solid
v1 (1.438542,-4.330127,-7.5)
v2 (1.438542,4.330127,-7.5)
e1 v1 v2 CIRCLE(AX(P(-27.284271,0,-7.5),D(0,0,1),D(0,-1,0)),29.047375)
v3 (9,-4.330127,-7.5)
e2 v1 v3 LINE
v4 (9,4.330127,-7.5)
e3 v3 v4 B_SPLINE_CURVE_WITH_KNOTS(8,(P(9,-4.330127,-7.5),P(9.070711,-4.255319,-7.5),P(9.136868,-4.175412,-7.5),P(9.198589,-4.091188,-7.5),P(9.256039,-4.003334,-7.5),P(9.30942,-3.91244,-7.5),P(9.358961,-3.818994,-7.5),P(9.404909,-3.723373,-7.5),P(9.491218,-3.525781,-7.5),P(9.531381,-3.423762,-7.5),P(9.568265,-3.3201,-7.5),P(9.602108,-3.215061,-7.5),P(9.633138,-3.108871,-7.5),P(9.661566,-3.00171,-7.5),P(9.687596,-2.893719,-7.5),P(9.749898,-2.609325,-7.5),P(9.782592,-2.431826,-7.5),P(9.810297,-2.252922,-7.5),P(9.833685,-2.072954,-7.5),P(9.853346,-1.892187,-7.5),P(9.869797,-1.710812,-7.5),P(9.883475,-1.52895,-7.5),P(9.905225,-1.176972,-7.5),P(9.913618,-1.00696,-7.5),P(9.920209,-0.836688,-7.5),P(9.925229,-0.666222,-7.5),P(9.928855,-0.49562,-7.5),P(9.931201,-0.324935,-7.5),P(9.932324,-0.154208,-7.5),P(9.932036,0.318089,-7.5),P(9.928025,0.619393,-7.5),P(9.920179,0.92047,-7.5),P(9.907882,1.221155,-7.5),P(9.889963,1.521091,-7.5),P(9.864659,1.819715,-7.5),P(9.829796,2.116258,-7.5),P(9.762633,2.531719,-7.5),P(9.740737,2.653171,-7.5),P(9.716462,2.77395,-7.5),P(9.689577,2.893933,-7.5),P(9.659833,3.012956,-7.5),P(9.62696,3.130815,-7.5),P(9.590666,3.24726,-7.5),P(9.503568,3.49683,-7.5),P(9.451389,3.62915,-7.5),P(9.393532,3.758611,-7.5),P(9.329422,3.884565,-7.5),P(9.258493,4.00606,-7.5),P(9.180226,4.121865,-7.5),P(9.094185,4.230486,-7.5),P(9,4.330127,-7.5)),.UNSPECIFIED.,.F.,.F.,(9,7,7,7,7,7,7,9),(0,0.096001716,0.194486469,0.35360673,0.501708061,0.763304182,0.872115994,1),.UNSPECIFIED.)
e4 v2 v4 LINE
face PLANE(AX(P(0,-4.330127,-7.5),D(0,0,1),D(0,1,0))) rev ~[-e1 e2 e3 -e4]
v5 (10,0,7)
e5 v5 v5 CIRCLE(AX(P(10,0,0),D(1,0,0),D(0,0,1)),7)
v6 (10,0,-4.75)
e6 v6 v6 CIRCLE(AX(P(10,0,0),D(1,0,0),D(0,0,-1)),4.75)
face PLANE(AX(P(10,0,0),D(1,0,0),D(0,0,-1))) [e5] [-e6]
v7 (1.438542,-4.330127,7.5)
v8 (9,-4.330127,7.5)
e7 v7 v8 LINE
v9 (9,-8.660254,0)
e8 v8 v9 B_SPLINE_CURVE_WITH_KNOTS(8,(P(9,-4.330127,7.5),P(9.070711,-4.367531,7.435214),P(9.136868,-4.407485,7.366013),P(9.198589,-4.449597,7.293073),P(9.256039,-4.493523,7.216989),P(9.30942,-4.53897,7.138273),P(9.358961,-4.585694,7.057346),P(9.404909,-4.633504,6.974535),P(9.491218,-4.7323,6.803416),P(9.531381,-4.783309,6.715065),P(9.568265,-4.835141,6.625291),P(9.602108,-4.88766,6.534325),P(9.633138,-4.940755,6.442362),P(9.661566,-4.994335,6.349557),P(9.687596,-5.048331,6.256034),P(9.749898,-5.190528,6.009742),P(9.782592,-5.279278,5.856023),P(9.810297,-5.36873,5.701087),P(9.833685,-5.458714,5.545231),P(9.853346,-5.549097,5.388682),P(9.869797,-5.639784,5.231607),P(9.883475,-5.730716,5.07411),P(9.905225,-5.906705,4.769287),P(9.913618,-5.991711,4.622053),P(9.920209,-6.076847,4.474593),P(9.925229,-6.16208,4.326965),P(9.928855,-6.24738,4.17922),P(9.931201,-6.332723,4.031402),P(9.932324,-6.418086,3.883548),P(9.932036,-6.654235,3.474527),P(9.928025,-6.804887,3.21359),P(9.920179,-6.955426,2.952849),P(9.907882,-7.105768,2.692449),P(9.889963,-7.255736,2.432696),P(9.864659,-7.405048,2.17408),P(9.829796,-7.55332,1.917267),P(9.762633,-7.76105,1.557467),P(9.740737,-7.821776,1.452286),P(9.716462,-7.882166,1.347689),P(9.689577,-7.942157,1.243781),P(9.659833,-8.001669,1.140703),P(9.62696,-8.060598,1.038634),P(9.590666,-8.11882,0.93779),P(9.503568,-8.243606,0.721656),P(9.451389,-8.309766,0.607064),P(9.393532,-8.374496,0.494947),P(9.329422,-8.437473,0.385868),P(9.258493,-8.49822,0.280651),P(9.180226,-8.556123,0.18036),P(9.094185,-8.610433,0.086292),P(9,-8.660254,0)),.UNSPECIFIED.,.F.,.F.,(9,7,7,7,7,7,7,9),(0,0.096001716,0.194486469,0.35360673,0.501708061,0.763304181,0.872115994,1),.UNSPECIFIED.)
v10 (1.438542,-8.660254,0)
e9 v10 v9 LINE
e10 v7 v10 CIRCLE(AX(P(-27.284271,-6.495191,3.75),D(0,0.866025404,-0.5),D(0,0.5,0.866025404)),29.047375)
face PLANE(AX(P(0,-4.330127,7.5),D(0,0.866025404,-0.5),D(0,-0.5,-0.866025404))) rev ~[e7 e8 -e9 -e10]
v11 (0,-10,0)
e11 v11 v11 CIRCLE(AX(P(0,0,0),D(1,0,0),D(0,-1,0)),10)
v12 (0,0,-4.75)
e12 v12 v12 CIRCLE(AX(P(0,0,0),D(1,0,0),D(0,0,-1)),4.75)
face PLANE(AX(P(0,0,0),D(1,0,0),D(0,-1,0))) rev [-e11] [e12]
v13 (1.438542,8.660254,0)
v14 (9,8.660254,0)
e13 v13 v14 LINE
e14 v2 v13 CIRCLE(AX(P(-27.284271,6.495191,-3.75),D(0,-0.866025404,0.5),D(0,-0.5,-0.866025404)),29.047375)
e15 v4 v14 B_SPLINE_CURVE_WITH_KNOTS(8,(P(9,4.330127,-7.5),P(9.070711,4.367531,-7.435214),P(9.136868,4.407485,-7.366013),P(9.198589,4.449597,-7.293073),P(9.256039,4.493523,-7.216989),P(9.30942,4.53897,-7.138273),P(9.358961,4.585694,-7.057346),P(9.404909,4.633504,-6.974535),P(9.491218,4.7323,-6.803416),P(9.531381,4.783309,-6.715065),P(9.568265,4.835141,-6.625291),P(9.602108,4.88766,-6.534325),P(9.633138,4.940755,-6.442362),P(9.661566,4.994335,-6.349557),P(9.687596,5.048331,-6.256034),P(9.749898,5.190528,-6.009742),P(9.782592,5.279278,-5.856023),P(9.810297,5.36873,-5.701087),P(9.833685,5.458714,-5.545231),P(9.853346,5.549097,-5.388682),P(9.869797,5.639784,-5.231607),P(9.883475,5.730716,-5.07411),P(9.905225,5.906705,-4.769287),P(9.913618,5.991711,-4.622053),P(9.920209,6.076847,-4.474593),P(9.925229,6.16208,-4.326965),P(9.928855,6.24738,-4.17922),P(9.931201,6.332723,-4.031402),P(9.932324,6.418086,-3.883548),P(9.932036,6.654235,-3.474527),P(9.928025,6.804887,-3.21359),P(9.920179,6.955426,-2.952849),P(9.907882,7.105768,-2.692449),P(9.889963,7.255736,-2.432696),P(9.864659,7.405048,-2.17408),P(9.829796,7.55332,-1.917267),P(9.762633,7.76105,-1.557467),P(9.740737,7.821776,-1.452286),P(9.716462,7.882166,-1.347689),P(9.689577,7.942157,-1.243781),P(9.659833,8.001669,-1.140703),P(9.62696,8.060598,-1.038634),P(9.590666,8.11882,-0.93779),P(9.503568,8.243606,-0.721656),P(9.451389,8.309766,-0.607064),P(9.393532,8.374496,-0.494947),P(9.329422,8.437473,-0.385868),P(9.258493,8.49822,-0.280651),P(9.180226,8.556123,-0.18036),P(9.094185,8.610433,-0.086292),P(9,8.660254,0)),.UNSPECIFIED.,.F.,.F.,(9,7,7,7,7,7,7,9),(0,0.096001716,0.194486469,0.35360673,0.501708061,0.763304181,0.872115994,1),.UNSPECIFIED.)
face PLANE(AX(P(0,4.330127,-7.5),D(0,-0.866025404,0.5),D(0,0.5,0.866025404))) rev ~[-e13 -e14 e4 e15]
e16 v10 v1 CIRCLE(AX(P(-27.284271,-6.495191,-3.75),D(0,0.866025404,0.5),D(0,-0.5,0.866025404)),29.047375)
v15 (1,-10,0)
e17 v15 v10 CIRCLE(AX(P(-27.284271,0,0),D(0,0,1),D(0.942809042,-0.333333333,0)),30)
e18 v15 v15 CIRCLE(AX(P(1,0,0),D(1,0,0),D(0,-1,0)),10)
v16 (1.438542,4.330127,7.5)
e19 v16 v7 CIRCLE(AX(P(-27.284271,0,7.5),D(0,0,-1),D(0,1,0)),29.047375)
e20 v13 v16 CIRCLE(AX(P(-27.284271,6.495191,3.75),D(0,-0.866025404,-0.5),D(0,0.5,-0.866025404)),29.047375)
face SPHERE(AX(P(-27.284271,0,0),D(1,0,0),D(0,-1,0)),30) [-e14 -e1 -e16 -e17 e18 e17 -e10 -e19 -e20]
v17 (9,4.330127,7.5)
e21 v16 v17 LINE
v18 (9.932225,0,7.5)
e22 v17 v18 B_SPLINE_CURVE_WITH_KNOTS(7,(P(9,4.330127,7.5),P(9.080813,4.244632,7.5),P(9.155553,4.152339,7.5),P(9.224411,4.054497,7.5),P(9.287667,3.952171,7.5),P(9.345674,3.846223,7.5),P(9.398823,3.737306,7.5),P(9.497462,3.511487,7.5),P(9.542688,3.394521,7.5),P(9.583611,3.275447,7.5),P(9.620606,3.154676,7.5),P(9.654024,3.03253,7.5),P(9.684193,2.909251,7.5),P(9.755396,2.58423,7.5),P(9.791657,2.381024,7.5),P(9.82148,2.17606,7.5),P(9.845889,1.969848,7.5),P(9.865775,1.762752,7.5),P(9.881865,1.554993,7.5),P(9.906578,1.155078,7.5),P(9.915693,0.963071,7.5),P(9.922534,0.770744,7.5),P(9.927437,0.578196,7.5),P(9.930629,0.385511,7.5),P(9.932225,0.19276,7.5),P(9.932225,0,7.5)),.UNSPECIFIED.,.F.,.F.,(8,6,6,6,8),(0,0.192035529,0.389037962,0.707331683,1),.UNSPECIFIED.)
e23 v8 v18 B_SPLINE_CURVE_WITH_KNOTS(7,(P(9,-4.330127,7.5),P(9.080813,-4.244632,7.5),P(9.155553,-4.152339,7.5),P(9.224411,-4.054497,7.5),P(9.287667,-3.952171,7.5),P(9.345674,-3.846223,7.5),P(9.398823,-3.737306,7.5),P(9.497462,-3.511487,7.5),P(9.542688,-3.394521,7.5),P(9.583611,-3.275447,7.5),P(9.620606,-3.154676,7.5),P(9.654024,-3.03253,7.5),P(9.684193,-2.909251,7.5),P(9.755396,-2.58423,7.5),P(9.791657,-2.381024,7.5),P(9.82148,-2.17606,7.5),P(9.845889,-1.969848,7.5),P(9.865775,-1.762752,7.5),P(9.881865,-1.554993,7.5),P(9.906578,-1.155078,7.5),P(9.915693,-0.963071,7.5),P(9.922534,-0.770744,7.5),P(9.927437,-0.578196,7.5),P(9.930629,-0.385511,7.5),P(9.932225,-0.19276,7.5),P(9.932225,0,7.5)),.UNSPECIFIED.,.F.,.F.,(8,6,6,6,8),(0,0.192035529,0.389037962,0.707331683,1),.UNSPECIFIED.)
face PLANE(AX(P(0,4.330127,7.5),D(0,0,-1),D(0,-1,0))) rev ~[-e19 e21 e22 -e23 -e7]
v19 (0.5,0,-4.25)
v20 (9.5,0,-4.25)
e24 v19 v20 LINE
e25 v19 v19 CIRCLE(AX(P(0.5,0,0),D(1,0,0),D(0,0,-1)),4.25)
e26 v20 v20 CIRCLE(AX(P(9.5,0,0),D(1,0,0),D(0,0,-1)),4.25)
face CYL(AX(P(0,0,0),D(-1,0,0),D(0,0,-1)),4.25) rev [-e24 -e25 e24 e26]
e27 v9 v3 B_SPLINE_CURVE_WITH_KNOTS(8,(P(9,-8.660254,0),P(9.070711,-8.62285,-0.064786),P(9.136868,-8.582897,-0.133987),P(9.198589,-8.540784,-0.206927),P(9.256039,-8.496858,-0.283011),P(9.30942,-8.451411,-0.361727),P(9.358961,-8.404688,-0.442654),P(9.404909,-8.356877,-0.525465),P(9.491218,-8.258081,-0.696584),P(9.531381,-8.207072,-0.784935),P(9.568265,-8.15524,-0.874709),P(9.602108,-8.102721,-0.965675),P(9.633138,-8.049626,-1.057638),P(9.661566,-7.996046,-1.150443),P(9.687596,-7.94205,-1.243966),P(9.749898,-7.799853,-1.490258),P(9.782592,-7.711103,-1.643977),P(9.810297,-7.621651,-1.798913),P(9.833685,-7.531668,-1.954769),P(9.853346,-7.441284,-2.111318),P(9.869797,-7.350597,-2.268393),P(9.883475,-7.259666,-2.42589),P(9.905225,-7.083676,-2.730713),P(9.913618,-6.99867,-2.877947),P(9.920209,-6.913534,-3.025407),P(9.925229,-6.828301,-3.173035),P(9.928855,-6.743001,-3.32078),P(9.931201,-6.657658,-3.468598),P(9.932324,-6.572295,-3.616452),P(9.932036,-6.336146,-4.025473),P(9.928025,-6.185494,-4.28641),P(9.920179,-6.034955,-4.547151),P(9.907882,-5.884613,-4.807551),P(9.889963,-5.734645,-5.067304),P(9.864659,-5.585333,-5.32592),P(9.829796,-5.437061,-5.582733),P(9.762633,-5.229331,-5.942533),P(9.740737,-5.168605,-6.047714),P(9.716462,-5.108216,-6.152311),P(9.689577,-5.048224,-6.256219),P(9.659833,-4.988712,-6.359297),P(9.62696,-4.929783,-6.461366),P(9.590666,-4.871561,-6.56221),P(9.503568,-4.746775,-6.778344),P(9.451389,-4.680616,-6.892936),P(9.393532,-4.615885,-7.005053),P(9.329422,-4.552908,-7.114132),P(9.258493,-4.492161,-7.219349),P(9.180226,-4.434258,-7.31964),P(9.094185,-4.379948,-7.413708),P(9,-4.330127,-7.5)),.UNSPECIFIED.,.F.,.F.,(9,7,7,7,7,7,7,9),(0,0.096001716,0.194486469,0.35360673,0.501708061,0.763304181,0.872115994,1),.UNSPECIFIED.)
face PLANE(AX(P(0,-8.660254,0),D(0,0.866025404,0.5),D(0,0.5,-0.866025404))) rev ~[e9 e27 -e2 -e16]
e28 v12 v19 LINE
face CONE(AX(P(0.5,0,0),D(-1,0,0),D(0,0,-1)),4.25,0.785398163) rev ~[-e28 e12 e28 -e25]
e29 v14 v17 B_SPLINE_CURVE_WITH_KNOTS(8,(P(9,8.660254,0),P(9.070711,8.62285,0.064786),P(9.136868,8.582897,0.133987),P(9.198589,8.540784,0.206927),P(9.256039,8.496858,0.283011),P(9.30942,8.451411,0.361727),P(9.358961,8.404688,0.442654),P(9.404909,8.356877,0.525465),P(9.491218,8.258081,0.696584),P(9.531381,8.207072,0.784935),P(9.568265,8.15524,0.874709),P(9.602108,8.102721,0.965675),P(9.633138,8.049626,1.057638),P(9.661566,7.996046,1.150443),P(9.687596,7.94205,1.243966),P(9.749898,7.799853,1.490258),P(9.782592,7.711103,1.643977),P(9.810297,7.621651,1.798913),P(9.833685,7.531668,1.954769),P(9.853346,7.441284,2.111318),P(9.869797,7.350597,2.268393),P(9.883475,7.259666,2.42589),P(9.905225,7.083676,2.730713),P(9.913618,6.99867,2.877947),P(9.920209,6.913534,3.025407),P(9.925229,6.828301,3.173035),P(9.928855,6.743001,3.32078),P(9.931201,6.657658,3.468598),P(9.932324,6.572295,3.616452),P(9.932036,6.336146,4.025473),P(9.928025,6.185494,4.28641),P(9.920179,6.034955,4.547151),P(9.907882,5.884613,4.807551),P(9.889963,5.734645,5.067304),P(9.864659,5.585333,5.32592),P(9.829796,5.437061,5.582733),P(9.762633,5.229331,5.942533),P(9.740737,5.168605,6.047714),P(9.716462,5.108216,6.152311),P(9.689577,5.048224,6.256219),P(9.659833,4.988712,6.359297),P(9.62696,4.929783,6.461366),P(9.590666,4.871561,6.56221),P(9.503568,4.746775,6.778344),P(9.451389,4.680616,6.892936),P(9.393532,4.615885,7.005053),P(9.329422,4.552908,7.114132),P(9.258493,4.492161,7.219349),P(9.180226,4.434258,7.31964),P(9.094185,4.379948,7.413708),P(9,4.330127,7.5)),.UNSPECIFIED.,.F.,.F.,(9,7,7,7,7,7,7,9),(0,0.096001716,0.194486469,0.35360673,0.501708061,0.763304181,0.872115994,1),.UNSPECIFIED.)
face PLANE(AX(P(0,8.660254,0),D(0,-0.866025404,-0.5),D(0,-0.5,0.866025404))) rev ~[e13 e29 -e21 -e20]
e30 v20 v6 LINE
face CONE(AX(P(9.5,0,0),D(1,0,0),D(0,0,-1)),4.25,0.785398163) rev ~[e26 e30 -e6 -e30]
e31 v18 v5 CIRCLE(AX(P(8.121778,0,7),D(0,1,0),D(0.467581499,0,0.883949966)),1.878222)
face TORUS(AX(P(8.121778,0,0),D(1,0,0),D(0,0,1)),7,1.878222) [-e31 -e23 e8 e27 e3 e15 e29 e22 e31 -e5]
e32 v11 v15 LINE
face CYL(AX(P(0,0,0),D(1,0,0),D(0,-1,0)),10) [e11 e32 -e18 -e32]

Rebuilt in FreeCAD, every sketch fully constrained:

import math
import FreeCAD as App
import Part
import Sketcher

V = App.Vector
Q = App.Units.Quantity


def edges_at(feature, points):
    """Names of the edges that pass closest to the given points."""
    edges = feature.Shape.Edges
    near = lambda p: min(range(len(edges)), key=lambda i: edges[i].distToShape(Part.Vertex(*p))[0])
    return sorted({f"Edge{near(p) + 1}" for p in points})


def add_polygon(sketch, points):
    """Adds a closed chain of lines whose ends are joined by coincident constraints."""
    first, n = sketch.GeometryCount, len(points)
    for a, b in zip(points, points[1:] + points[:1]):
        sketch.addGeometry(Part.LineSegment(App.Vector(*a, 0), App.Vector(*b, 0)), False)
    for i in range(n):
        sketch.addConstraint(Sketcher.Constraint("Coincident", first + i, 2, first + (i + 1) % n, 1))

doc = App.newDocument("Part")
body = doc.addObject("PartDesign::Body", "Body")

sketch1 = doc.addObject("Sketcher::SketchObject", "Sketch")
body.addObject(sketch1)
sketch1.AttachmentSupport = (doc.YZ_Plane, [""])
sketch1.MapMode = "FlatFace"
add_polygon(sketch1, [(9, 0), (4, 8), (-4, 8), (-9, 0), (-4, -8), (4, -8)])
sketch1.addConstraint([
    Sketcher.Constraint("Horizontal", 1),
    Sketcher.Constraint("Horizontal", 4),
    Sketcher.Constraint("Symmetric", 0, 2, 3, 2, -1, 1),
    Sketcher.Constraint("Symmetric", 2, 2, 5, 2, -1, 1),
    Sketcher.Constraint("PointOnObject", 2, 2, -1),
    Sketcher.Constraint("Parallel", 2, 5),
    Sketcher.Constraint("Vertical", 1, 2, 3, 2),
    Sketcher.Constraint("Angle", 0, Q("120 deg")),
    Sketcher.Constraint("DistanceY", 3, 2, 1, 2, 15.0),
    Sketcher.Constraint("DistanceX", 1, 2, 1, 1, 8.660254),
])
pad1 = doc.addObject("PartDesign::Pad", "Pad")
body.addObject(pad1)
pad1.Profile = sketch1
pad1.Length = 10

sketch2 = doc.addObject("Sketcher::SketchObject", "Sketch001")
body.addObject(sketch2)
sketch2.AttachmentSupport = (doc.XY_Plane, [""])
sketch2.MapMode = "FlatFace"
sketch2.addGeometry([
    Part.LineSegment(V(10, 8.7, 0), V(9, 8.7, 0)),
    Part.ArcOfCircle(Part.Circle(V(8.1, 7, 0), V(0, 0, 1), 1.9), math.radians(0), math.radians(62)),
    Part.LineSegment(V(10, 7, 0), V(10, 8.7, 0)),
], False)
sketch2.addConstraint([
    Sketcher.Constraint("Coincident", 0, 2, 1, 2),
    Sketcher.Constraint("Tangent", 1, 1, 2, 1),
    Sketcher.Constraint("Coincident", 2, 2, 0, 1),
    Sketcher.Constraint("Horizontal", 0),
    Sketcher.Constraint("Vertical", 2),
    Sketcher.Constraint("DistanceX", 0, 2, 0, 1, 1.0),
    Sketcher.Constraint("DistanceY", -1, 1, 1, 3, 7.0),
    Sketcher.Constraint("DistanceX", -1, 1, 0, 2, 9.0),
    Sketcher.Constraint("Radius", 1, 1.878222),
])
groove = doc.addObject("PartDesign::Groove", "Groove")
body.addObject(groove)
groove.Profile = sketch2
groove.ReferenceAxis = (sketch2, ["H_Axis"])
groove.Angle = 360

sketch3 = doc.addObject("Sketcher::SketchObject", "Sketch002")
body.addObject(sketch3)
sketch3.AttachmentSupport = (doc.XY_Plane, [""])
sketch3.MapMode = "FlatFace"
sketch3.addGeometry([
    Part.LineSegment(V(0, 10, 0), V(0, 0, 0)),
    Part.LineSegment(V(0, 0, 0), V(2.7, 0, 0)),
    Part.ArcOfCircle(Part.Circle(V(-27.3, 0, 0), V(0, 0, 1), 30), math.radians(0), math.radians(19.47)),
    Part.LineSegment(V(1, 10, 0), V(0, 10, 0)),
], False)
sketch3.addConstraint([
    Sketcher.Constraint("Coincident", 0, 2, 1, 1),
    Sketcher.Constraint("Coincident", 1, 2, 2, 1),
    Sketcher.Constraint("Coincident", 2, 2, 3, 1),
    Sketcher.Constraint("Coincident", 3, 2, 0, 1),
    Sketcher.Constraint("Vertical", 0),
    Sketcher.Constraint("Horizontal", 1),
    Sketcher.Constraint("Horizontal", 3),
    Sketcher.Constraint("Coincident", 0, 2, -1, 1),
    Sketcher.Constraint("PointOnObject", 2, 3, -1),
    Sketcher.Constraint("Radius", 2, 30.0),
    Sketcher.Constraint("DistanceX", 3, 2, 3, 1, 1.0),
    Sketcher.Constraint("DistanceY", 0, 2, 0, 1, 10.0),
])
revolution = doc.addObject("PartDesign::Revolution", "Revolution")
body.addObject(revolution)
revolution.Profile = sketch3
revolution.ReferenceAxis = (sketch3, ["H_Axis"])
revolution.Angle = 360

sketch4 = doc.addObject("Sketcher::SketchObject", "Sketch003")
body.addObject(sketch4)
sketch4.AttachmentSupport = (doc.YZ_Plane, [""])
sketch4.MapMode = "FlatFace"
sketch4.addGeometry(Part.Circle(V(0, 0, 0), V(0, 0, 1), 4.2), False)
sketch4.addConstraint([
    Sketcher.Constraint("Coincident", 0, 3, -1, 1),
    Sketcher.Constraint("Diameter", 0, 8.5),
])
pocket1 = doc.addObject("PartDesign::Pocket", "Pocket")
body.addObject(pocket1)
pocket1.Profile = sketch4
pocket1.Length = 10
pocket1.Reversed = True
doc.recompute()

chamfer = doc.addObject("PartDesign::Chamfer", "Chamfer")
body.addObject(chamfer)
chamfer.Base = (pocket1, edges_at(pocket1, [(0, 0, 4.25), (10, 0, 4.25)]))
chamfer.Size = 0.5

doc.recompute()
